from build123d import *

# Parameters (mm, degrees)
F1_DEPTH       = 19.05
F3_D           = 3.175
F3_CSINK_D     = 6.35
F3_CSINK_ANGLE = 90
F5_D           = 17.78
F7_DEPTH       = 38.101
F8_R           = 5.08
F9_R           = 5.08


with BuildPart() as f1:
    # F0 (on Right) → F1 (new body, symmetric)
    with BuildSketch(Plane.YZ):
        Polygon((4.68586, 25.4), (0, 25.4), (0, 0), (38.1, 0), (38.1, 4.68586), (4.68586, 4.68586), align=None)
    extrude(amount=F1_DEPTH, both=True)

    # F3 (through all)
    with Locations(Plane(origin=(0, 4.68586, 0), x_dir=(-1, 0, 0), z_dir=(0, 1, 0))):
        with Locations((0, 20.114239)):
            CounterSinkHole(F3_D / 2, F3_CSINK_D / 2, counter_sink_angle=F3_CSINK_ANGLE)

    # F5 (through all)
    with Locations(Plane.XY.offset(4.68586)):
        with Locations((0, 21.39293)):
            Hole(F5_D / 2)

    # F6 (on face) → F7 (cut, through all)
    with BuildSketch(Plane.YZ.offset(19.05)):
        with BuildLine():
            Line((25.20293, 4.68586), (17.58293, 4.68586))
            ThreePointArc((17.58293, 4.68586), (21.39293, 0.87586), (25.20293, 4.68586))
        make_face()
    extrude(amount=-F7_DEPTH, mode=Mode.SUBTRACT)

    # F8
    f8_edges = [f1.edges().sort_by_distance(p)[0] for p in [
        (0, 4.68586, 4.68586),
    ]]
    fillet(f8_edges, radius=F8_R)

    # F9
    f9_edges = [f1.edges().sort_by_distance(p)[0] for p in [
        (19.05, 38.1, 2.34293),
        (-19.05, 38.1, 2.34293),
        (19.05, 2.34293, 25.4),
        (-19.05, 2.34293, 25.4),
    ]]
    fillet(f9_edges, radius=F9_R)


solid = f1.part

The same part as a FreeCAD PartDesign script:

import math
import FreeCAD as App
import Part
import Sketcher
Q = App.Units.Quantity


def edges_at(feature, points):
    """Names of the edges that pass closest to the given points."""
    edges = feature.Shape.Edges
    near = lambda p: min(range(len(edges)), key=lambda i: edges[i].distToShape(Part.Vertex(*p))[0])
    return sorted({f"Edge{near(p) + 1}" for p in points})

doc = App.newDocument("Part")
body = doc.addObject("PartDesign::Body", "Body")

sketch1 = body.newObject("Sketcher::SketchObject", "Sketch")
sketch1.AttachmentSupport = (doc.getObject("YZ_Plane"), [""])
sketch1.MapMode = "FlatFace"
sketch1.addGeometry(Part.LineSegment(App.Vector(4.68586, 25.4, 0), App.Vector(0, 25.4, 0)), False)
sketch1.addGeometry(Part.LineSegment(App.Vector(0, 25.4, 0), App.Vector(0, 0, 0)), False)
sketch1.addGeometry(Part.LineSegment(App.Vector(0, 0, 0), App.Vector(38.1, 0, 0)), False)
sketch1.addGeometry(Part.LineSegment(App.Vector(38.1, 0, 0), App.Vector(38.1, 4.68586, 0)), False)
sketch1.addGeometry(Part.LineSegment(App.Vector(38.1, 4.68586, 0), App.Vector(4.68586, 4.68586, 0)), False)
sketch1.addGeometry(Part.LineSegment(App.Vector(4.68586, 4.68586, 0), App.Vector(4.68586, 25.4, 0)), False)
sketch1.addConstraint(Sketcher.Constraint("Coincident", 0, 2, 1, 1))
sketch1.addConstraint(Sketcher.Constraint("Coincident", 1, 2, 2, 1))
sketch1.addConstraint(Sketcher.Constraint("Coincident", 2, 2, 3, 1))
sketch1.addConstraint(Sketcher.Constraint("Coincident", 3, 2, 4, 1))
sketch1.addConstraint(Sketcher.Constraint("Coincident", 4, 2, 5, 1))
sketch1.addConstraint(Sketcher.Constraint("Coincident", 5, 2, 0, 1))
sketch1.addConstraint(Sketcher.Constraint("Horizontal", 0))
sketch1.addConstraint(Sketcher.Constraint("Vertical", 1))
sketch1.addConstraint(Sketcher.Constraint("Horizontal", 2))
sketch1.addConstraint(Sketcher.Constraint("Vertical", 3))
sketch1.addConstraint(Sketcher.Constraint("Horizontal", 4))
sketch1.addConstraint(Sketcher.Constraint("Vertical", 5))
sketch1.addConstraint(Sketcher.Constraint("Coincident", 1, 2, -1, 1))
sketch1.addConstraint(Sketcher.Constraint("Equal", 0, 3))
sketch1.addConstraint(Sketcher.Constraint("DistanceY", 1, 2, 1, 1, Q("1 in")))
sketch1.addConstraint(Sketcher.Constraint("DistanceX", 2, 1, 2, 2, Q("1.5 in")))
sketch1.addConstraint(Sketcher.Constraint("DistanceX", 0, 2, 0, 1, 4.68586))
pad1 = body.newObject("PartDesign::Pad", "Pad")
pad1.Profile = sketch1
pad1.Length = Q("1.5 in")
pad1.Midplane = True

sketch2 = body.newObject("Sketcher::SketchObject", "Sketch001")
sketch2.AttachmentSupport = (doc.getObject("XZ_Plane"), [""])
sketch2.MapMode = "FlatFace"
sketch2.AttachmentOffset = App.Placement(App.Vector(0, 0, -4.68586), App.Rotation())
sketch2.addGeometry(Part.Circle(App.Vector(0, 20.114239, 0), App.Vector(0, 0, 1), 1.5875), False)
sketch2.addConstraint(Sketcher.Constraint("PointOnObject", 0, 3, -2))
sketch2.addConstraint(Sketcher.Constraint("Diameter", 0, Q("0.125 in")))
sketch2.addConstraint(Sketcher.Constraint("DistanceY", -1, 1, 0, 3, 20.114239))
doc.recompute()
hole = body.newObject("PartDesign::Hole", "Hole")
hole.Profile = sketch2
hole.ThreadType = "None"
hole.Diameter = Q("0.125 in")
hole.DepthType = "ThroughAll"
hole.HoleCutType = "Countersink"
hole.HoleCutDiameter = Q("0.25 in")
hole.HoleCutCountersinkAngle = 90
hole.Reversed = True

sketch3 = body.newObject("Sketcher::SketchObject", "Sketch002")
sketch3.AttachmentSupport = (doc.getObject("XY_Plane"), [""])
sketch3.MapMode = "FlatFace"
sketch3.AttachmentOffset = App.Placement(App.Vector(0, 0, 4.68586), App.Rotation())
sketch3.addGeometry(Part.Circle(App.Vector(0, 21.39293, 0), App.Vector(0, 0, 1), 8.89), False)
sketch3.addConstraint(Sketcher.Constraint("PointOnObject", 0, 3, -2))
sketch3.addConstraint(Sketcher.Constraint("Diameter", 0, Q("0.7 in")))
sketch3.addConstraint(Sketcher.Constraint("DistanceY", -1, 1, 0, 3, 21.39293))
doc.recompute()
hole2 = body.newObject("PartDesign::Hole", "Hole001")
hole2.Profile = sketch3
hole2.ThreadType = "None"
hole2.Diameter = Q("0.7 in")
hole2.DepthType = "ThroughAll"

sketch4 = body.newObject("Sketcher::SketchObject", "Sketch003")
sketch4.AttachmentSupport = (doc.getObject("YZ_Plane"), [""])
sketch4.MapMode = "FlatFace"
sketch4.AttachmentOffset = App.Placement(App.Vector(0, 0, 0.75 * 25.4), App.Rotation())
sketch4.addGeometry(Part.LineSegment(App.Vector(25.20293, 4.68586, 0), App.Vector(17.58293, 4.68586, 0)), False)
sketch4.addGeometry(Part.ArcOfCircle(Part.Circle(App.Vector(21.39293, 4.68586, 0), App.Vector(0, 0, 1), 3.81), math.radians(180), math.radians(360)), False)
sketch4.addConstraint(Sketcher.Constraint("Coincident", 0, 1, 1, 2))
sketch4.addConstraint(Sketcher.Constraint("Coincident", 1, 1, 0, 2))
sketch4.addConstraint(Sketcher.Constraint("Horizontal", 0))
sketch4.addConstraint(Sketcher.Constraint("Horizontal", 1, 3, 0, 1))
sketch4.addConstraint(Sketcher.Constraint("Radius", 1, Q("0.15 in")))
sketch4.addConstraint(Sketcher.Constraint("DistanceX", -1, 1, 1, 3, 21.39293))
sketch4.addConstraint(Sketcher.Constraint("DistanceY", -1, 1, 1, 3, 4.68586))
pocket1 = body.newObject("PartDesign::Pocket", "Pocket")
pocket1.Profile = sketch4
pocket1.Type = "ThroughAll"
doc.recompute()

fillet = body.newObject("PartDesign::Fillet", "Fillet")
fillet.Base = (pocket1, edges_at(pocket1, [(0, 4.686, 4.686)]))
fillet.Radius = Q("0.2 in")
doc.recompute()

fillet2 = body.newObject("PartDesign::Fillet", "Fillet001")
fillet2.Base = (fillet, edges_at(fillet, [
    (19.05, 38.1, 2.343),
    (-19.05, 38.1, 2.343),
    (19.05, 2.343, 25.4),
    (-19.05, 2.343, 25.4),
]))
fillet2.Radius = Q("0.2 in")

doc.recompute()
